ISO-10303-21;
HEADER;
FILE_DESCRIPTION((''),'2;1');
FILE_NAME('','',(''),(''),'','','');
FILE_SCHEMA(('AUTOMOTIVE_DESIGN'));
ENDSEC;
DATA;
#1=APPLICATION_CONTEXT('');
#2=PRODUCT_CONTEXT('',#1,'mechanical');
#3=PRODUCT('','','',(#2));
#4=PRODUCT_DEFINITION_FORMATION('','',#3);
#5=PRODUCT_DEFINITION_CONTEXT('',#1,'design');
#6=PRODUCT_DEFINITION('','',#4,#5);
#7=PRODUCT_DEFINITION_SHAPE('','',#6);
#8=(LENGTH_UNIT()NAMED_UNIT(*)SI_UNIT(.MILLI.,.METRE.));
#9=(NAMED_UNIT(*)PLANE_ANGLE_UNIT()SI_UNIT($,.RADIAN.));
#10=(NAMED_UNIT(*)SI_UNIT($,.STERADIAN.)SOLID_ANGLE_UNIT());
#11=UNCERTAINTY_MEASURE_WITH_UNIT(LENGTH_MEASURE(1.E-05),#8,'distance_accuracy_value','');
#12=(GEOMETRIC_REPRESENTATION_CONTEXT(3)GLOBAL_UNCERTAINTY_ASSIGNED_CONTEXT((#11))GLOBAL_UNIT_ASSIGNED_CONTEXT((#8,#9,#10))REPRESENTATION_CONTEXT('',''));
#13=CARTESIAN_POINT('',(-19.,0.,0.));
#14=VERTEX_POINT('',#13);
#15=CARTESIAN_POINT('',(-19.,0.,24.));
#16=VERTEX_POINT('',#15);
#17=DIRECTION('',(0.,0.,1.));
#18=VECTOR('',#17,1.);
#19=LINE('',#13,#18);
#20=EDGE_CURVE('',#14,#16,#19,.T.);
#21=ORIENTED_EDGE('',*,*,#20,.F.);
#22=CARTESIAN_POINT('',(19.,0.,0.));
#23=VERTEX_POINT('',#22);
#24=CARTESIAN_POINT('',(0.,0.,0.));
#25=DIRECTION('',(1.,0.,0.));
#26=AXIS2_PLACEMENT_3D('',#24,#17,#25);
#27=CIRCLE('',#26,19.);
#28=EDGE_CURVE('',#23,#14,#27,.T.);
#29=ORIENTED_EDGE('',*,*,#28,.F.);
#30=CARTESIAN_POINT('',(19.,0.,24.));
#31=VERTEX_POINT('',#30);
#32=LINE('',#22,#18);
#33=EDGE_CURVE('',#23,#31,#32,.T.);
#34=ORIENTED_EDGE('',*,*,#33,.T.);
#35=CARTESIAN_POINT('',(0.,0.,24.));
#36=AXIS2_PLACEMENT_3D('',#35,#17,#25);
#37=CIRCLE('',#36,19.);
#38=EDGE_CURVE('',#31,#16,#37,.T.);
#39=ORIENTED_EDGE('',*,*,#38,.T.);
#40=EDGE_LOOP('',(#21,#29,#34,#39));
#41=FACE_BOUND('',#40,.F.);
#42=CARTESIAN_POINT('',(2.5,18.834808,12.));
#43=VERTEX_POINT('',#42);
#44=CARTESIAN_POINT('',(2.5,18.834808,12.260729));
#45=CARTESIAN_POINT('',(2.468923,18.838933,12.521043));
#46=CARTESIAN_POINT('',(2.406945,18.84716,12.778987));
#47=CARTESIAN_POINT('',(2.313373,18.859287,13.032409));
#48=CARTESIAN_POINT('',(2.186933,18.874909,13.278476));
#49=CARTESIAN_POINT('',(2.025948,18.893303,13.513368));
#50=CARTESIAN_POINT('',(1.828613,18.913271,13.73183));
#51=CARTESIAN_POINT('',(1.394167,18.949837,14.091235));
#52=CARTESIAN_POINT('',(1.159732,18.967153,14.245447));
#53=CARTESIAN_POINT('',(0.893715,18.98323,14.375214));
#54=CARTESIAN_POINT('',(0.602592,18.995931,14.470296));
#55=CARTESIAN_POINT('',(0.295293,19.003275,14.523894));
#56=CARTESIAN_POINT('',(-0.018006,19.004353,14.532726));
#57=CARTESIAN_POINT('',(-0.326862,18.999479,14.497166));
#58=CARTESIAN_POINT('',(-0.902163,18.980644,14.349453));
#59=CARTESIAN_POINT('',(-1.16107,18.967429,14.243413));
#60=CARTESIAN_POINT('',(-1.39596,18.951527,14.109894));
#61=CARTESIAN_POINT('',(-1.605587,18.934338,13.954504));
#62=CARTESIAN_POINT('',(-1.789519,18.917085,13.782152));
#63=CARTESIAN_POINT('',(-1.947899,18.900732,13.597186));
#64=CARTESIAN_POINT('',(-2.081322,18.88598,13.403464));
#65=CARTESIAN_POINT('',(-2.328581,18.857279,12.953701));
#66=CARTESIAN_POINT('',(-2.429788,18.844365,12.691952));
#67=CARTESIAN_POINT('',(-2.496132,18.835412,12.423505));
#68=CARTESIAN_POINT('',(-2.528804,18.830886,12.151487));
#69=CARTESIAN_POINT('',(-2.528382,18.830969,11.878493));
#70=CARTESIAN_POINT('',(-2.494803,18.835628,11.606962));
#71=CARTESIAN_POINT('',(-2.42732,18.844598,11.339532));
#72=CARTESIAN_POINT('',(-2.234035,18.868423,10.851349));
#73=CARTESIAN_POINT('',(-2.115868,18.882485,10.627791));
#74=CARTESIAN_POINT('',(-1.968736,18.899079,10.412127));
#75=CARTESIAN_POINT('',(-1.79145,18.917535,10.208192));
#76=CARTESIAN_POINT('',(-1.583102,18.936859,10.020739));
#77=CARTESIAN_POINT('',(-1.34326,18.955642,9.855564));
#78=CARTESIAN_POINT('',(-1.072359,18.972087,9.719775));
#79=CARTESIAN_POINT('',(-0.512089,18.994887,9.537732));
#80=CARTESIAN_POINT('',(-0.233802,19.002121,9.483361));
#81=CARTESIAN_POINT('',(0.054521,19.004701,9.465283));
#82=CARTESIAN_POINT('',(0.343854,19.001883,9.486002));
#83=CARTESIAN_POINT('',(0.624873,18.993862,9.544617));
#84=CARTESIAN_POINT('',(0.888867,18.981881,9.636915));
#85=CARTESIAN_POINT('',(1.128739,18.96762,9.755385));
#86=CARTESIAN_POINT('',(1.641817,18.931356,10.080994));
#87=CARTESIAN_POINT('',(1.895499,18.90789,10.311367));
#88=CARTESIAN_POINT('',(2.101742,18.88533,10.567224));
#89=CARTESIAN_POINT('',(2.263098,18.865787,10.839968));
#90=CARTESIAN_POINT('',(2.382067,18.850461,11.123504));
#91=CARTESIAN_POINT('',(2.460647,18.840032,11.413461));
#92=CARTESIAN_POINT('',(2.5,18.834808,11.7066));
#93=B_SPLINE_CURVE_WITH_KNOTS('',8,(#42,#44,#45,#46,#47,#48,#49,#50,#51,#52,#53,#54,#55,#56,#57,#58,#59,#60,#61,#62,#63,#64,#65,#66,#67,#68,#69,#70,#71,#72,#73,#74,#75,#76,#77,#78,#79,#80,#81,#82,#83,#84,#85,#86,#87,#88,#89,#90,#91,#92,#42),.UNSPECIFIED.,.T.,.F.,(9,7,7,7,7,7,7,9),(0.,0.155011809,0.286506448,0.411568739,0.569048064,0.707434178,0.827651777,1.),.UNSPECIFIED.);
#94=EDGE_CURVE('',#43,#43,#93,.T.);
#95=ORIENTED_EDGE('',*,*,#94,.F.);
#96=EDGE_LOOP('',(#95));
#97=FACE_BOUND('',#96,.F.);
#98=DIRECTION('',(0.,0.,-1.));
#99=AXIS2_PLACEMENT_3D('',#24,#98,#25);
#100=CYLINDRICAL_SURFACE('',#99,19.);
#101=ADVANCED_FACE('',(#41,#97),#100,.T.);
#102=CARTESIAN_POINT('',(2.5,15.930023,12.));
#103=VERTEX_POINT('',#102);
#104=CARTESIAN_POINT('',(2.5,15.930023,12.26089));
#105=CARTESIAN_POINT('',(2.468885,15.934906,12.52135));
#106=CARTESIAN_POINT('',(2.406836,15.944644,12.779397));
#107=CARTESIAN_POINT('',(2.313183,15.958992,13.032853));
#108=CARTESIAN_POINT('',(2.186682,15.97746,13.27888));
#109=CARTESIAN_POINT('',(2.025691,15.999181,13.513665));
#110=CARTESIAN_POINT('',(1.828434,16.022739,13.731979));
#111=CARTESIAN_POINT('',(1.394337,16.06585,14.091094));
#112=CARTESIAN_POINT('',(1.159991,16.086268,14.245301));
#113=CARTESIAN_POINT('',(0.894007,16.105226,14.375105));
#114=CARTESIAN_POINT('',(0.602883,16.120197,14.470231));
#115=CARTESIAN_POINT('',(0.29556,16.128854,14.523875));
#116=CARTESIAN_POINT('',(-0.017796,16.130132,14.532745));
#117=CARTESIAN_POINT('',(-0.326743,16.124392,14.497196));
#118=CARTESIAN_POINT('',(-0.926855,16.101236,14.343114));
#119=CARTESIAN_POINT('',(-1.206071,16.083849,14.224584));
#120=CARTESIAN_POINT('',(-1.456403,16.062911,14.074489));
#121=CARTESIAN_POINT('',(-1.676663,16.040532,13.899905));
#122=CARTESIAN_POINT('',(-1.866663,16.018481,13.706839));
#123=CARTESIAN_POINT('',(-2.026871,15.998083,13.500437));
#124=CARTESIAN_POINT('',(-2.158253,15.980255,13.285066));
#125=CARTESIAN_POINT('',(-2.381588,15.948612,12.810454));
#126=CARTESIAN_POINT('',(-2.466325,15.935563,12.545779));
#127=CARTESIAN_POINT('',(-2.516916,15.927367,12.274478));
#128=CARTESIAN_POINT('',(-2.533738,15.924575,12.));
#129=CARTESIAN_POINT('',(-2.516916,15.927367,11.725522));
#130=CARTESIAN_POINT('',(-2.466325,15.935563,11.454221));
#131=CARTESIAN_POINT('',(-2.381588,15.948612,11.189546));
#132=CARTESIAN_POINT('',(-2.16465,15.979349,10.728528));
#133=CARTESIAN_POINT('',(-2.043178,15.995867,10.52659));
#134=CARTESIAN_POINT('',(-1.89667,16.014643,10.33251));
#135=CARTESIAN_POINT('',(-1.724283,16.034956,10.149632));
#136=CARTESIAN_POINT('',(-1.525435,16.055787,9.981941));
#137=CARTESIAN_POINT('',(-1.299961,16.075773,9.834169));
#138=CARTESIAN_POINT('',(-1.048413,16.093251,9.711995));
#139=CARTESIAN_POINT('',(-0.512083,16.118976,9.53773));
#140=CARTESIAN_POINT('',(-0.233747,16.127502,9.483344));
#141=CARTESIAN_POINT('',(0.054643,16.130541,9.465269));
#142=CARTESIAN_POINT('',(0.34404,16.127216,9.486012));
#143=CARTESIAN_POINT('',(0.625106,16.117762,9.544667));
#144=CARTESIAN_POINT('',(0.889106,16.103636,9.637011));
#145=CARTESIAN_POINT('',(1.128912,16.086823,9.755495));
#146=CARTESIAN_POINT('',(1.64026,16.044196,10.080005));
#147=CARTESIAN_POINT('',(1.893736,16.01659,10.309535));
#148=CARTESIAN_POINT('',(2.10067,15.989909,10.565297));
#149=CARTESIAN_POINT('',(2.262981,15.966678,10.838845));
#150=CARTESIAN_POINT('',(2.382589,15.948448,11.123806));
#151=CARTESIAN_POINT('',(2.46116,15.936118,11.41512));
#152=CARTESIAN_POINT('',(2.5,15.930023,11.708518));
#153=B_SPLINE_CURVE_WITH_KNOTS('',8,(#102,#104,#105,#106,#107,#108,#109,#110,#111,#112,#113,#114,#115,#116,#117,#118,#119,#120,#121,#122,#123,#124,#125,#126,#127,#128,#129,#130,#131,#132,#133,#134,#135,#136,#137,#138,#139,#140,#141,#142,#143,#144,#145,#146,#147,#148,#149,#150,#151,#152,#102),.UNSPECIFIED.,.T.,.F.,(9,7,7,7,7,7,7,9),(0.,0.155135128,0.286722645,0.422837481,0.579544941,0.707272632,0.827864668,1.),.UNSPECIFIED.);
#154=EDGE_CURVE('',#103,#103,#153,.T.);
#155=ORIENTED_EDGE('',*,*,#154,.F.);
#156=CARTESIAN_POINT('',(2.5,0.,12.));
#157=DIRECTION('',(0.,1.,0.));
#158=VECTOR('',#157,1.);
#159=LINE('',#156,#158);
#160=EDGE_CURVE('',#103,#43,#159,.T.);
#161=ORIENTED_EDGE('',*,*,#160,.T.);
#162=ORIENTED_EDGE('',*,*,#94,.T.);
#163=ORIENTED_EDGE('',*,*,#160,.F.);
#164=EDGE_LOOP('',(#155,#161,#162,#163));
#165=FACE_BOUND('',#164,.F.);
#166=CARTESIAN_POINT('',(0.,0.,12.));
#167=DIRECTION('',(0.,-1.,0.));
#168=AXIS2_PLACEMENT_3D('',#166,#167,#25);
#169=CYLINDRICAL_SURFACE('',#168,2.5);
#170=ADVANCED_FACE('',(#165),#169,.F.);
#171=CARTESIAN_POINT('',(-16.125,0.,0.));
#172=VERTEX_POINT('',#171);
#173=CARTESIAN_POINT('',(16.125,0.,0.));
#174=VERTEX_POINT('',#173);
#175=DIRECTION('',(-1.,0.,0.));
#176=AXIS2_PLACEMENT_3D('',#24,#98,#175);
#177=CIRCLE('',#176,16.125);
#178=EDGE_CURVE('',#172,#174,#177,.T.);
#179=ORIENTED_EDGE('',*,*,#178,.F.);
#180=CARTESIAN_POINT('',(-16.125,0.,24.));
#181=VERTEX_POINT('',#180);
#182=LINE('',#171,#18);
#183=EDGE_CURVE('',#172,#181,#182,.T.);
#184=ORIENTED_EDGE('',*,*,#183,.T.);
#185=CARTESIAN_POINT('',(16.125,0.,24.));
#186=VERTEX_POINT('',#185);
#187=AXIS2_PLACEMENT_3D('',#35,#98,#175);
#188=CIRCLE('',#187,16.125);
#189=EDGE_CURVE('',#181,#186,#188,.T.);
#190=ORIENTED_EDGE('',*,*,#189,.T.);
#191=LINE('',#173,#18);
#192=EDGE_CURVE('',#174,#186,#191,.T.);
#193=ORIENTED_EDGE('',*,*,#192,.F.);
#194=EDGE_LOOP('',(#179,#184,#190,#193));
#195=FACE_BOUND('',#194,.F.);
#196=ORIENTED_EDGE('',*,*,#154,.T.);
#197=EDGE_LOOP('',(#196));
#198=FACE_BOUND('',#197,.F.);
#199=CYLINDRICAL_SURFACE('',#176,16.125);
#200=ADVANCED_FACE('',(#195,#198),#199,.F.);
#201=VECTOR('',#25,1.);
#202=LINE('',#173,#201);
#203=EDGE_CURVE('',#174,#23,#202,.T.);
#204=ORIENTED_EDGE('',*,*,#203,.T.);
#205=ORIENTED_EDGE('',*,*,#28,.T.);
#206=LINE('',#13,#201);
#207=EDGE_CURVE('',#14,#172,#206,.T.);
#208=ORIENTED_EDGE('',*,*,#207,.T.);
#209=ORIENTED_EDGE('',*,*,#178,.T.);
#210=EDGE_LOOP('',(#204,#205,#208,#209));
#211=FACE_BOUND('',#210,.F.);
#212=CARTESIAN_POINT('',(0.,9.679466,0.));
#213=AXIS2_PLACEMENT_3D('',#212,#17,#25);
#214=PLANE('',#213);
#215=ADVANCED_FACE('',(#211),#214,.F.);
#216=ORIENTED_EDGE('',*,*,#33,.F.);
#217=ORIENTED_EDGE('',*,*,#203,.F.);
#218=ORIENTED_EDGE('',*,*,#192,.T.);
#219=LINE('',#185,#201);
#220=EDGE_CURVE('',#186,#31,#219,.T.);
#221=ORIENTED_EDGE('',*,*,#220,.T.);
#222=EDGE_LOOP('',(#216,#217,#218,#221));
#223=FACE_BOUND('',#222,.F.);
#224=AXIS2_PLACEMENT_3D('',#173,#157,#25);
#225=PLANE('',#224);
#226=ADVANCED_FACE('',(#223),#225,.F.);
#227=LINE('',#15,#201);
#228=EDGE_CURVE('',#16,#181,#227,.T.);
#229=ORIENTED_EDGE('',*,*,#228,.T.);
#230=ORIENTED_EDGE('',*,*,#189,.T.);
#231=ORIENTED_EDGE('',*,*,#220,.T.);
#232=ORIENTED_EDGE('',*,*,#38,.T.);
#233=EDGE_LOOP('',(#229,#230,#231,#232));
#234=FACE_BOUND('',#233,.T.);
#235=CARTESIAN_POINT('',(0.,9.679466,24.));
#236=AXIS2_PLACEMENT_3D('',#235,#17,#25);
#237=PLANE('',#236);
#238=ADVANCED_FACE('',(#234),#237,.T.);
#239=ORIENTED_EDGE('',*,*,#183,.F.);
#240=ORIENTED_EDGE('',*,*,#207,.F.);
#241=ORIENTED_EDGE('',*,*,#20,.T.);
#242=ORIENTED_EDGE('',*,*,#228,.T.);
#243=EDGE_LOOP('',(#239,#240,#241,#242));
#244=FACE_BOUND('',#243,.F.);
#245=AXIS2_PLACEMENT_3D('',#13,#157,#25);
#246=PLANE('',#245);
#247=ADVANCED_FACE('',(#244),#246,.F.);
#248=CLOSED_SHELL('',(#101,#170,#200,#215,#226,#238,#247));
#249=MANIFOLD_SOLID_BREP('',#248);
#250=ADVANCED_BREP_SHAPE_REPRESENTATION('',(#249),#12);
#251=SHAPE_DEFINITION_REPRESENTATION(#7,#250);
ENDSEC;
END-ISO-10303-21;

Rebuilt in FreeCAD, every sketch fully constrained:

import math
import FreeCAD as App
import Part
import Sketcher
Q = App.Units.Quantity

doc = App.newDocument("Part")
body = doc.addObject("PartDesign::Body", "Body")

# Sketch on XY plane
sketch1 = doc.addObject("Sketcher::SketchObject", "Sketch")
body.addObject(sketch1)
sketch1.AttachmentSupport = (doc.XY_Plane, [""])
sketch1.MapMode = "FlatFace"
sketch1.addGeometry([
    Part.LineSegment(App.Vector(16.125, 0, 0), App.Vector(19, 0, 0)),
    Part.ArcOfCircle(Part.Circle(App.Vector(0, 0, 0), App.Vector(0, 0, 1), 19), math.radians(0), math.radians(180)),
    Part.LineSegment(App.Vector(-19, 0, 0), App.Vector(-16.125, 0, 0)),
    Part.ArcOfCircle(Part.Circle(App.Vector(0, 0, 0), App.Vector(0, 0, 1), 16.125), math.radians(0), math.radians(180)),
], False)
sketch1.addConstraint([
    Sketcher.Constraint("Coincident", 0, 2, 1, 1),
    Sketcher.Constraint("Coincident", 1, 2, 2, 1),
    Sketcher.Constraint("Coincident", 2, 2, 3, 2),
    Sketcher.Constraint("Coincident", 3, 1, 0, 1),
    Sketcher.Constraint("Horizontal", 0),
    Sketcher.Constraint("Horizontal", 2),
    Sketcher.Constraint("Coincident", 1, 3, -1, 1),
    Sketcher.Constraint("Coincident", 3, 3, -1, 1),
    Sketcher.Constraint("PointOnObject", 0, 2, -1),
    Sketcher.Constraint("PointOnObject", 1, 2, -1),
    Sketcher.Constraint("Radius", 1, Q("19 mm")),
    Sketcher.Constraint("Radius", 3, Q("16.125 mm")),
])
pad1 = doc.addObject("PartDesign::Pad", "Pad")
body.addObject(pad1)
pad1.Profile = sketch1
pad1.Length = 24

# Sketch on XZ plane
sketch2 = doc.addObject("Sketcher::SketchObject", "Sketch001")
body.addObject(sketch2)
sketch2.AttachmentSupport = (doc.XZ_Plane, [""])
sketch2.MapMode = "FlatFace"
sketch2.addGeometry(Part.Circle(App.Vector(0, 12, 0), App.Vector(0, 0, 1), 2.5), False)
sketch2.addConstraint([
    Sketcher.Constraint("PointOnObject", 0, 3, -2),
    Sketcher.Constraint("Diameter", 0, Q("5 mm")),
    Sketcher.Constraint("DistanceY", -1, 1, 0, 3, Q("12 mm")),
])
pocket1 = doc.addObject("PartDesign::Pocket", "Pocket")
body.addObject(pocket1)
pocket1.Profile = sketch2
pocket1.Length = 25

doc.recompute()
